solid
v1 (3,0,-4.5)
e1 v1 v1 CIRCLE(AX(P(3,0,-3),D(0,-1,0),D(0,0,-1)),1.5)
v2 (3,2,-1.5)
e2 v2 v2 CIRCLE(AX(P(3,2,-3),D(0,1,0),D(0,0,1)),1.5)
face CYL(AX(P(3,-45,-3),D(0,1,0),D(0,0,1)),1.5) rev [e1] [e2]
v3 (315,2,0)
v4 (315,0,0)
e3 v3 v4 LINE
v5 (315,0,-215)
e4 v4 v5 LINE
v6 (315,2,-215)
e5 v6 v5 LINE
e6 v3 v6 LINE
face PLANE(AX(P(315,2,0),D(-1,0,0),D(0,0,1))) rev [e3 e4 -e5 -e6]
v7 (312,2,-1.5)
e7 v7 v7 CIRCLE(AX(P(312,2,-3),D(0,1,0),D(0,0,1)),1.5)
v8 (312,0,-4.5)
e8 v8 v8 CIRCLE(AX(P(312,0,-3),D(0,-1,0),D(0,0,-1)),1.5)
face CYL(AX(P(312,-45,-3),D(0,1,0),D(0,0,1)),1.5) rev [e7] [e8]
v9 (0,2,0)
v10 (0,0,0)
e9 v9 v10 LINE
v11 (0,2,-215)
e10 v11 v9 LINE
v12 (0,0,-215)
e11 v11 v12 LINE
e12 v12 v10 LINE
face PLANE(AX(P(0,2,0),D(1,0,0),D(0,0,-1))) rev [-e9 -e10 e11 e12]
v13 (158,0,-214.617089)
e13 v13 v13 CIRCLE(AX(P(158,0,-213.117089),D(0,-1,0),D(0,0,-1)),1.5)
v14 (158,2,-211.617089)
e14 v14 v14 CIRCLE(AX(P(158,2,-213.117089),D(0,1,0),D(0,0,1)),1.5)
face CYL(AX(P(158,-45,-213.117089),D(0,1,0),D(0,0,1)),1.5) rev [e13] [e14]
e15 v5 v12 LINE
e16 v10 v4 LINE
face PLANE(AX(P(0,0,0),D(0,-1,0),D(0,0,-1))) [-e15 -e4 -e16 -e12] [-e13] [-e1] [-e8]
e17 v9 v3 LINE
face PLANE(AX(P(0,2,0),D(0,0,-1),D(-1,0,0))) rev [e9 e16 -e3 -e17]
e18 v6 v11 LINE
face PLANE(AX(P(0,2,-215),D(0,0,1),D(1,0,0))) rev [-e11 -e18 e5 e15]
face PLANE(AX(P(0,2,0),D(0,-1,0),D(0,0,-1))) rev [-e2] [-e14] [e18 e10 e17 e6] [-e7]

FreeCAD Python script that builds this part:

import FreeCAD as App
import Part
import Sketcher

doc = App.newDocument("Part")
body = doc.addObject("PartDesign::Body", "Body")

sketch1 = body.newObject("Sketcher::SketchObject", "Sketch")
sketch1.AttachmentSupport = (doc.getObject("XZ_Plane"), [""])
sketch1.MapMode = "FlatFace"
sketch1.addGeometry(Part.LineSegment(App.Vector(0, -215, 0), App.Vector(0, 0, 0)), False)
sketch1.addGeometry(Part.LineSegment(App.Vector(0, 0, 0), App.Vector(315, 0, 0)), False)
sketch1.addGeometry(Part.LineSegment(App.Vector(315, 0, 0), App.Vector(315, -215, 0)), False)
sketch1.addGeometry(Part.LineSegment(App.Vector(315, -215, 0), App.Vector(0, -215, 0)), False)
sketch1.addConstraint(Sketcher.Constraint("Coincident", 0, 2, 1, 1))
sketch1.addConstraint(Sketcher.Constraint("Coincident", 1, 2, 2, 1))
sketch1.addConstraint(Sketcher.Constraint("Coincident", 2, 2, 3, 1))
sketch1.addConstraint(Sketcher.Constraint("Coincident", 3, 2, 0, 1))
sketch1.addConstraint(Sketcher.Constraint("Vertical", 0))
sketch1.addConstraint(Sketcher.Constraint("Horizontal", 1))
sketch1.addConstraint(Sketcher.Constraint("Vertical", 2))
sketch1.addConstraint(Sketcher.Constraint("Horizontal", 3))
sketch1.addConstraint(Sketcher.Constraint("Coincident", 0, 2, -1, 1))
sketch1.addConstraint(Sketcher.Constraint("DistanceX", 1, 1, 1, 2, 315.0))
sketch1.addConstraint(Sketcher.Constraint("DistanceY", 0, 1, 0, 2, 215.0))
pad1 = body.newObject("PartDesign::Pad", "Pad")
pad1.Profile = sketch1
pad1.Length = 2
pad1.Reversed = True

sketch2 = body.newObject("Sketcher::SketchObject", "Sketch001")
sketch2.AttachmentSupport = (doc.getObject("XZ_Plane"), [""])
sketch2.MapMode = "FlatFace"
sketch2.AttachmentOffset = App.Placement(App.Vector(0, 0, -2), App.Rotation())
sketch2.addGeometry(Part.Circle(App.Vector(3, -3, 0), App.Vector(0, 0, 1), 1.5), False)
sketch2.addGeometry(Part.Circle(App.Vector(312, -3, 0), App.Vector(0, 0, 1), 1.5), False)
sketch2.addConstraint(Sketcher.Constraint("Equal", 0, 1))
sketch2.addConstraint(Sketcher.Constraint("Horizontal", 0, 3, 1, 3))
sketch2.addConstraint(Sketcher.Constraint("Diameter", 0, 3.0))
sketch2.addConstraint(Sketcher.Constraint("DistanceX", -1, 1, 0, 3, 3.0))
sketch2.addConstraint(Sketcher.Constraint("DistanceY", 0, 3, -1, 1, 3.0))
sketch2.addConstraint(Sketcher.Constraint("DistanceX", -1, 1, 1, 3, 312.0))
pocket1 = body.newObject("PartDesign::Pocket", "Pocket")
pocket1.Profile = sketch2
pocket1.Length = 47
pocket1.Reversed = True

sketch3 = body.newObject("Sketcher::SketchObject", "Sketch002")
sketch3.AttachmentSupport = (doc.getObject("XZ_Plane"), [""])
sketch3.MapMode = "FlatFace"
sketch3.AttachmentOffset = App.Placement(App.Vector(0, 0, -2), App.Rotation())
sketch3.addGeometry(Part.Circle(App.Vector(158, -213.117089, 0), App.Vector(0, 0, 1), 1.5), False)
sketch3.addConstraint(Sketcher.Constraint("Diameter", 0, 3.0))
sketch3.addConstraint(Sketcher.Constraint("DistanceX", -1, 1, 0, 3, 158.0))
sketch3.addConstraint(Sketcher.Constraint("DistanceY", 0, 3, -1, 1, 213.117089))
pocket2 = body.newObject("PartDesign::Pocket", "Pocket001")
pocket2.Profile = sketch3
pocket2.Length = 47
pocket2.Reversed = True

doc.recompute()
